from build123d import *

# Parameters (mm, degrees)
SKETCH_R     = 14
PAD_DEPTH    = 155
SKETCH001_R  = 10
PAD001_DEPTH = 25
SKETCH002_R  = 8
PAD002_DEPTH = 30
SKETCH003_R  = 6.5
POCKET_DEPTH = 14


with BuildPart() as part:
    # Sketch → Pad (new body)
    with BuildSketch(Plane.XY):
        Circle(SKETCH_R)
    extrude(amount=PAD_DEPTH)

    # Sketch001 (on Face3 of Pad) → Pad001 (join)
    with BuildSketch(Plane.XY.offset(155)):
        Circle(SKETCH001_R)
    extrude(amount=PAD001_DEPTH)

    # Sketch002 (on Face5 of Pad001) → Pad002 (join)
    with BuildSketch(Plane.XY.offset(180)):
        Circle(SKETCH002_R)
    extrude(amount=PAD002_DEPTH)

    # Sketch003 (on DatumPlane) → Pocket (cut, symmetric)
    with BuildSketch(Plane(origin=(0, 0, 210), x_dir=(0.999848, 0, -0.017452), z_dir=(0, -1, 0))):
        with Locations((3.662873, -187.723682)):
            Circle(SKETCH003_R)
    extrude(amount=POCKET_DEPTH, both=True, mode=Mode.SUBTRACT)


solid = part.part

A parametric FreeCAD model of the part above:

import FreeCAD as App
import Part
import Sketcher
from FreeCAD import Vector
Q = App.Units.Quantity

doc = App.newDocument("Part")
body = doc.addObject("PartDesign::Body", "Body")

sketch1 = body.newObject("Sketcher::SketchObject", "Sketch")
sketch1.AttachmentSupport = (doc.getObject("XY_Plane"), [""])
sketch1.MapMode = "FlatFace"
sketch1.addGeometry(Part.Circle(Vector(0, 0, 0), Vector(0, 0, 1), 14), False)
sketch1.addConstraint(Sketcher.Constraint("Coincident", 0, 3, -1, 1))
sketch1.addConstraint(Sketcher.Constraint("Diameter", 0, Q("28 mm")))
pad1 = body.newObject("PartDesign::Pad", "Pad")
pad1.Profile = sketch1
pad1.Length = 155

sketch2 = body.newObject("Sketcher::SketchObject", "Sketch001")
sketch2.AttachmentSupport = (doc.getObject("XY_Plane"), [""])
sketch2.MapMode = "FlatFace"
sketch2.AttachmentOffset = App.Placement(Vector(0, 0, 155), App.Rotation())
sketch2.addGeometry(Part.Circle(Vector(0, 0, 0), Vector(0, 0, 1), 10), False)
sketch2.addConstraint(Sketcher.Constraint("Coincident", 0, 3, -1, 1))
sketch2.addConstraint(Sketcher.Constraint("Diameter", 0, Q("20 mm")))
pad2 = body.newObject("PartDesign::Pad", "Pad001")
pad2.Profile = sketch2
pad2.Length = 25

sketch3 = body.newObject("Sketcher::SketchObject", "Sketch002")
sketch3.AttachmentSupport = (doc.getObject("XY_Plane"), [""])
sketch3.MapMode = "FlatFace"
sketch3.AttachmentOffset = App.Placement(Vector(0, 0, 180), App.Rotation())
sketch3.addGeometry(Part.Circle(Vector(0, 0, 0), Vector(0, 0, 1), 8), False)
sketch3.addConstraint(Sketcher.Constraint("Coincident", 0, 3, -1, 1))
sketch3.addConstraint(Sketcher.Constraint("Diameter", 0, Q("16 mm")))
pad3 = body.newObject("PartDesign::Pad", "Pad002")
pad3.Profile = sketch3
pad3.Length = 30

sketch4 = body.newObject("Sketcher::SketchObject", "Sketch003")
sketch4.AttachmentSupport = (doc.getObject("XZ_Plane"), [""])
sketch4.MapMode = "FlatFace"
sketch4.addGeometry(Part.Circle(Vector(0.386162, 22.240983, 0), Vector(0, 0, 1), 6.5), False)
sketch4.addConstraint(Sketcher.Constraint("Diameter", 0, Q("13 mm")))
sketch4.addConstraint(Sketcher.Constraint("DistanceX", -1, 1, 0, 3, Q("0.386162 mm")))
sketch4.addConstraint(Sketcher.Constraint("DistanceY", -1, 1, 0, 3, Q("22.240983 mm")))
pocket1 = body.newObject("PartDesign::Pocket", "Pocket")
pocket1.Profile = sketch4
pocket1.Length = 28
pocket1.Midplane = True

doc.recompute()
